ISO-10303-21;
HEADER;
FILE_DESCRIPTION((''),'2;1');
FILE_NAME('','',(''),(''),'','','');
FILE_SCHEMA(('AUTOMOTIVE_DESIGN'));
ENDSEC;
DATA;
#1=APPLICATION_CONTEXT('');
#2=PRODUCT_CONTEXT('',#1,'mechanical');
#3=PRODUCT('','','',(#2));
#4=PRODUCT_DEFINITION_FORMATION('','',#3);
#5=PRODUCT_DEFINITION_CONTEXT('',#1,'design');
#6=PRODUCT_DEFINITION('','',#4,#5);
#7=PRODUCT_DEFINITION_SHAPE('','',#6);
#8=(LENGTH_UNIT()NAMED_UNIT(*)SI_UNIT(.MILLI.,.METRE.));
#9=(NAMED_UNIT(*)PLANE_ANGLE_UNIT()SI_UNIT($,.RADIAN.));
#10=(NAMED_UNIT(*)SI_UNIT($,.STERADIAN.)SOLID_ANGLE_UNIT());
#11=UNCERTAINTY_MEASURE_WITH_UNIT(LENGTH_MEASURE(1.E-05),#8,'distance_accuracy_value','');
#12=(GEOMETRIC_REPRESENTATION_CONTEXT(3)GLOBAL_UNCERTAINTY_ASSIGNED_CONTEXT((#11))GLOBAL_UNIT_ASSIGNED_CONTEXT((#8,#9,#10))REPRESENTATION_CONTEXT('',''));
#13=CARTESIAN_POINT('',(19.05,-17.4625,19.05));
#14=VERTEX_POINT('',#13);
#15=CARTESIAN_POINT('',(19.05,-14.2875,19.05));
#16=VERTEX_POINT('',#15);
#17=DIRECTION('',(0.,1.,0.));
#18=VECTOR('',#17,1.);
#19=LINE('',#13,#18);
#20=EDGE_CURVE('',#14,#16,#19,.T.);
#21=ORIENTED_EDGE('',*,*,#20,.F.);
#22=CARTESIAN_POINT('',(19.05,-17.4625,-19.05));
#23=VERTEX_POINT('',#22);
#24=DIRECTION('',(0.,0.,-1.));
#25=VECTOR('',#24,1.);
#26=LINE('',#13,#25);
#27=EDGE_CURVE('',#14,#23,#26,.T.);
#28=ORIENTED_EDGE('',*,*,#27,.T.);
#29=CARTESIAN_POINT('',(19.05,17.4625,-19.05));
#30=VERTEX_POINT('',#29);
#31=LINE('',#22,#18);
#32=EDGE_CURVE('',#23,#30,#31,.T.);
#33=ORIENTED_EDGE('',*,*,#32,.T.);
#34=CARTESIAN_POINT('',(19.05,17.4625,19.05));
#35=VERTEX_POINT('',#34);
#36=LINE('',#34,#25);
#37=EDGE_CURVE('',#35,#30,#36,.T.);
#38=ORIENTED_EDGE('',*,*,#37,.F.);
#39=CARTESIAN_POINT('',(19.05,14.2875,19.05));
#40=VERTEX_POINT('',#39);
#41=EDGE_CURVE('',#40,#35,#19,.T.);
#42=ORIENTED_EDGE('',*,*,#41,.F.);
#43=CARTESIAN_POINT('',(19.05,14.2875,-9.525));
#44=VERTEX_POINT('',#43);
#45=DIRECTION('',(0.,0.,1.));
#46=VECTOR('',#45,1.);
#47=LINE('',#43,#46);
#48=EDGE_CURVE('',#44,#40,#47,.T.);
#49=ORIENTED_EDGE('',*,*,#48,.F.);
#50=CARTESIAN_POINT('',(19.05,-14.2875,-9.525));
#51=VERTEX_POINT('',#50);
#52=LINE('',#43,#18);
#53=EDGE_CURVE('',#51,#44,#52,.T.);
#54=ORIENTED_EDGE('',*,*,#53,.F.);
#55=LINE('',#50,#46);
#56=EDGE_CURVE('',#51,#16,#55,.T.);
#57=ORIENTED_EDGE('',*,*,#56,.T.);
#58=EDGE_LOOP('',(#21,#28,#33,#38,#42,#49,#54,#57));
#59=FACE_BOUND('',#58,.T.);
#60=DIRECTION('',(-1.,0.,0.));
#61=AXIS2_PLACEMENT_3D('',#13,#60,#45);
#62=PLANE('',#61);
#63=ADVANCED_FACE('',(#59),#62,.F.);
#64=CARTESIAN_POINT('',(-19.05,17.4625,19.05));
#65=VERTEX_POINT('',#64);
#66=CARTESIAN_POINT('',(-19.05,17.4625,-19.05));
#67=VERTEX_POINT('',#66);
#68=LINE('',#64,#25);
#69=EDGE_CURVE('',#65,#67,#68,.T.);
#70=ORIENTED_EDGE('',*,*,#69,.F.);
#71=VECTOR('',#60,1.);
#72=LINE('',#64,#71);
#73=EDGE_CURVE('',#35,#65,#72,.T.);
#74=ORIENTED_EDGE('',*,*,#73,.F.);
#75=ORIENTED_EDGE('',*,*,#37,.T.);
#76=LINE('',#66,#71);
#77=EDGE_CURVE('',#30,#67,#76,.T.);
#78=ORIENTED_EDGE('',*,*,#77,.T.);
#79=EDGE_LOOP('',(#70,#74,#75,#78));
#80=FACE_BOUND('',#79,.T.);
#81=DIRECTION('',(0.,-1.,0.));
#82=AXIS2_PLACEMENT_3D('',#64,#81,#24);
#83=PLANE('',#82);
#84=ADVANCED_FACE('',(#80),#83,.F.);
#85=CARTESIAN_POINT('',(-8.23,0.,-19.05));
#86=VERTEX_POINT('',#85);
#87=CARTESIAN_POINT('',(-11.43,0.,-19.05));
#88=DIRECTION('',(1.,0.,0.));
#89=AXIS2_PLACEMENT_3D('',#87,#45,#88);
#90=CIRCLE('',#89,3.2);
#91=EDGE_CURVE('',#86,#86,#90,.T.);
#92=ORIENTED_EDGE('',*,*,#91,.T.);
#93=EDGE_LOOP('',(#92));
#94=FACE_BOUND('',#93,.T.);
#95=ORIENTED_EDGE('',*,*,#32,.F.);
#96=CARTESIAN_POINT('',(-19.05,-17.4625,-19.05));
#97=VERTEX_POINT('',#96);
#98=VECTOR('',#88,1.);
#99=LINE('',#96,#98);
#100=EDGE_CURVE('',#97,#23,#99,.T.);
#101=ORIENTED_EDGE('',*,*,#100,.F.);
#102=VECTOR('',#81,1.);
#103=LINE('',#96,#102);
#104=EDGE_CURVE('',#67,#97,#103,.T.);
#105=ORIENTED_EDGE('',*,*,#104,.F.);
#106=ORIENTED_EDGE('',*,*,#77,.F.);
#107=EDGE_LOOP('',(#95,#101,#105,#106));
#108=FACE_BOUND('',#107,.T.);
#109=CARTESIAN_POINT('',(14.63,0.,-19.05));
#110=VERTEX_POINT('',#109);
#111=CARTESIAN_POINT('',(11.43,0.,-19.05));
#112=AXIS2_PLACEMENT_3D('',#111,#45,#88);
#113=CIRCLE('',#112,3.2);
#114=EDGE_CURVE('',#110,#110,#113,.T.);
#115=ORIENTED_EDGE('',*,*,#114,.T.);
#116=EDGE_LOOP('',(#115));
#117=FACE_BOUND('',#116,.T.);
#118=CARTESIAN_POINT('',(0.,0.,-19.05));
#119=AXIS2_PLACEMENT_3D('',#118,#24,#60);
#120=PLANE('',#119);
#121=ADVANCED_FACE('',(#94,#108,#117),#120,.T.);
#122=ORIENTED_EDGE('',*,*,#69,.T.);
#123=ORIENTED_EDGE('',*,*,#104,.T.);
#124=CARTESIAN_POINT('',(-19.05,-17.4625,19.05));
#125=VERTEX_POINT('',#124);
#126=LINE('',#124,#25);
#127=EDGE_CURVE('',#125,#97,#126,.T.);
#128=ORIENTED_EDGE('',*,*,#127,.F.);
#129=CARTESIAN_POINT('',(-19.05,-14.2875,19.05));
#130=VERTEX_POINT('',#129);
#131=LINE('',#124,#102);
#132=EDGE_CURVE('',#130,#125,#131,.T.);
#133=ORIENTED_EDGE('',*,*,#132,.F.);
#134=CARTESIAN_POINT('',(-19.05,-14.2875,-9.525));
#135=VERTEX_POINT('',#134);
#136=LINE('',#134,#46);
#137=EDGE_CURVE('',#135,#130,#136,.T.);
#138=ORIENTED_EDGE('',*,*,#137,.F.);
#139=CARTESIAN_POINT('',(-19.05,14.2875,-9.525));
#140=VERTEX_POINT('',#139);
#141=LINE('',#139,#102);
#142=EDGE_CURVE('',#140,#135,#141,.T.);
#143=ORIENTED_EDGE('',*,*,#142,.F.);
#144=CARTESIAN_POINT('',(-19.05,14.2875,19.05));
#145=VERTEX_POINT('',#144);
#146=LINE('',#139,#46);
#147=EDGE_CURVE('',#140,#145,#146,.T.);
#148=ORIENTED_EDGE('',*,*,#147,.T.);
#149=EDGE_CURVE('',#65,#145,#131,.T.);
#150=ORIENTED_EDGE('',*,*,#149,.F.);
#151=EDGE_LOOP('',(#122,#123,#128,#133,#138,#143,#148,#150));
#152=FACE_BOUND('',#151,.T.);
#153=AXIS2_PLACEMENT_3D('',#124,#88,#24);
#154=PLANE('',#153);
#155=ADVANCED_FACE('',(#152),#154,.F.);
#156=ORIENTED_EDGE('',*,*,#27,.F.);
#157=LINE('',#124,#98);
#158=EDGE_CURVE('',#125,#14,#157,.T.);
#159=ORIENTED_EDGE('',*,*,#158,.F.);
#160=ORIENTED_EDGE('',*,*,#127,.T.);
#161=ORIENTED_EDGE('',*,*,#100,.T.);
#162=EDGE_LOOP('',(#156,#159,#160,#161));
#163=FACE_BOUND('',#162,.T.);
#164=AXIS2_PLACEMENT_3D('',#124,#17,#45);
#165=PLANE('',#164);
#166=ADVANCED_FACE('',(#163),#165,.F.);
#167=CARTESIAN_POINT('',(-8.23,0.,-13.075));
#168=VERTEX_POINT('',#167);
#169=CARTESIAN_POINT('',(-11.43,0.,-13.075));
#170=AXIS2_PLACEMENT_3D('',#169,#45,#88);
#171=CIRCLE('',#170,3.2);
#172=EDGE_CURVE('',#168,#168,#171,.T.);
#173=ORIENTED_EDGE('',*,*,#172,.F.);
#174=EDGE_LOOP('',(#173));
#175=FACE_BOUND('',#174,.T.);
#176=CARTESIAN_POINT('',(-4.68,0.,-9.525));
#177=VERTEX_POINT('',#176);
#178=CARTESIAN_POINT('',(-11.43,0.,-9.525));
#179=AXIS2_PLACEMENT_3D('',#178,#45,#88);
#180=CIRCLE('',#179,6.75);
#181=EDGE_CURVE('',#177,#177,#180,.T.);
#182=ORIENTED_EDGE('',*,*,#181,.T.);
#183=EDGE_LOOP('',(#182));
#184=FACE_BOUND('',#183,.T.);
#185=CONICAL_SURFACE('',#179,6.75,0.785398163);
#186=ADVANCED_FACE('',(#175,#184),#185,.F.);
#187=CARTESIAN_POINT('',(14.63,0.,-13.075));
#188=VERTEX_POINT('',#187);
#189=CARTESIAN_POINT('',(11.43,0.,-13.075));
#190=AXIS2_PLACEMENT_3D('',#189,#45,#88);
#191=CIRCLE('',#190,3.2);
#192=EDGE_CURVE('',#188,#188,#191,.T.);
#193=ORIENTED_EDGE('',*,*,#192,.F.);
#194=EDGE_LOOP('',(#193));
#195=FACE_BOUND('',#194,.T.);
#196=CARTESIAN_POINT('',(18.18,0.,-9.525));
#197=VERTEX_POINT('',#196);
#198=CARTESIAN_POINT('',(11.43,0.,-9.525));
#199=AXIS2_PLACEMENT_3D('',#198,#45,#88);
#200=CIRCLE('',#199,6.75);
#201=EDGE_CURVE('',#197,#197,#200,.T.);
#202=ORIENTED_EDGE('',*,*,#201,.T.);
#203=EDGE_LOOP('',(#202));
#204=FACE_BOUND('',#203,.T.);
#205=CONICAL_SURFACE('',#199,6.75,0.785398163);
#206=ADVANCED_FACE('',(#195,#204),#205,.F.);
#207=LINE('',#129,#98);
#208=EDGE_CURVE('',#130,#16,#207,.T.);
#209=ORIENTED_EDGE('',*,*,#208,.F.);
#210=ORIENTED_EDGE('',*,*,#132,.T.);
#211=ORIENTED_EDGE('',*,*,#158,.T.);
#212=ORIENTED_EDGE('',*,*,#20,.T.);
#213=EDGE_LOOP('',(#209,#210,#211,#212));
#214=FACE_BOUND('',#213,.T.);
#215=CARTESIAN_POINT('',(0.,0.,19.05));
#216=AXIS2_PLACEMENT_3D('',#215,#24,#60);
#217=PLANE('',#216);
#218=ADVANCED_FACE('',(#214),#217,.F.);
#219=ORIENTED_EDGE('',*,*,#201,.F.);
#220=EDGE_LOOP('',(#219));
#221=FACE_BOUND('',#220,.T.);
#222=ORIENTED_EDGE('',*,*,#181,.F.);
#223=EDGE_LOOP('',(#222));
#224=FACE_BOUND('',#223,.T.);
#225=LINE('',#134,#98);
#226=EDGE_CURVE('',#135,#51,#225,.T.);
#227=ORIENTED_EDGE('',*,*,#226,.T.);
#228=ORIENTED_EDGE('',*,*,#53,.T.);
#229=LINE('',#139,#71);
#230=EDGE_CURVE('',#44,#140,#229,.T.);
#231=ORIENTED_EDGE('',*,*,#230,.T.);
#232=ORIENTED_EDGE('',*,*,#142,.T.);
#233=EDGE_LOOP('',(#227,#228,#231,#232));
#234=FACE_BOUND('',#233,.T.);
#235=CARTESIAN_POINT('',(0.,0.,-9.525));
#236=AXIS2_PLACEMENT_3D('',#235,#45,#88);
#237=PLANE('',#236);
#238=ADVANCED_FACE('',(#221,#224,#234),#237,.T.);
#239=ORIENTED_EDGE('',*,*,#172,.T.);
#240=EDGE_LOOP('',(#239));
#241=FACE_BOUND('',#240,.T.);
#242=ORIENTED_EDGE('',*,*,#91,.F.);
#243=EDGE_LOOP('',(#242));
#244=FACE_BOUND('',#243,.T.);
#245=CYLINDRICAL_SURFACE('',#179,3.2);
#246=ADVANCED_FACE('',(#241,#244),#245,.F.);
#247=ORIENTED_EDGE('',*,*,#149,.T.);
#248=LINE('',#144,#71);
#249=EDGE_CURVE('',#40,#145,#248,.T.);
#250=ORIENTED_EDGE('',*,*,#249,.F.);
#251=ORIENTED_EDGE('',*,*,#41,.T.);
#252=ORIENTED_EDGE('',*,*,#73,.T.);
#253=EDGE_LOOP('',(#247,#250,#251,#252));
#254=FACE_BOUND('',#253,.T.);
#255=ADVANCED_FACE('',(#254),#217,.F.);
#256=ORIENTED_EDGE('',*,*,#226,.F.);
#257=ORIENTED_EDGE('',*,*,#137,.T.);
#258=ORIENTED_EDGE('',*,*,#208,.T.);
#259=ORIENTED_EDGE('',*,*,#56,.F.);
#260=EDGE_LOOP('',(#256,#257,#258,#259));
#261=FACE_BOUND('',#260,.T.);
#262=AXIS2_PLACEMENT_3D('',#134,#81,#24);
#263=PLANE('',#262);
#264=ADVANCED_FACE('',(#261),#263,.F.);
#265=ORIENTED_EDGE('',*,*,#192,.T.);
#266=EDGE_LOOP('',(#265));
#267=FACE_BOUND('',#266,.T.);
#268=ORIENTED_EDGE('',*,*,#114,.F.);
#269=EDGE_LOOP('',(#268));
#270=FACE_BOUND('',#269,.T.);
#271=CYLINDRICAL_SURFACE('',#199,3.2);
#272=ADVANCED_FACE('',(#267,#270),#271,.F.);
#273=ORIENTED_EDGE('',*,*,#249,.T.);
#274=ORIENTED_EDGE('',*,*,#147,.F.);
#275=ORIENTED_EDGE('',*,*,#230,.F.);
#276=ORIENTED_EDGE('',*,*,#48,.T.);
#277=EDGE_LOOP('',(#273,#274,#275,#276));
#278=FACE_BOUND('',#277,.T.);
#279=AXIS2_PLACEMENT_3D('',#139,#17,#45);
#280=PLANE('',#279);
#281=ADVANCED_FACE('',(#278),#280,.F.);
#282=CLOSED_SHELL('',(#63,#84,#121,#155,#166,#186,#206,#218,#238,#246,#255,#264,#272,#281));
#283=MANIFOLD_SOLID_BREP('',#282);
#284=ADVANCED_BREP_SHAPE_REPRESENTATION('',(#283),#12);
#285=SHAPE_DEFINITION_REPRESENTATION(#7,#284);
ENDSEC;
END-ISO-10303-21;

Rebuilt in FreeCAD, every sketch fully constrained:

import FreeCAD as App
import Part
import Sketcher

V = App.Vector
Q = App.Units.Quantity

doc = App.newDocument("Part")
params = doc.addObject("Spreadsheet::Sheet", "Params")
for row, (alias, value) in enumerate([
    ("sketch1_width", "1.5 in"),
    ("sketch1_height", "1.375 in"),
    ("pad1_length", "1.5 in"),
    ("sketch2_width", "1.5 in"),
    ("sketch2_height", "1.125 in"),
    ("pocket1_length", "1.125 in"),
    ("hole_diameter", "6.4 mm"),
    ("hole_csink_diameter", "13.5 mm"),
], start=1):
    params.set(f"A{row}", alias)
    params.set(f"B{row}", "=" + value)
    params.setAlias(f"B{row}", alias)

body = doc.addObject("PartDesign::Body", "Body")

# Sketch on XY plane
sketch1 = body.newObject("Sketcher::SketchObject", "Sketch")
sketch1.AttachmentSupport = (doc.getObject("XY_Plane"), [""])
sketch1.MapMode = "FlatFace"
sketch1.addGeometry(Part.LineSegment(V(-19, 17, 0), V(-19, -17, 0)), False)
sketch1.addGeometry(Part.LineSegment(V(-19, -17, 0), V(19, -17, 0)), False)
sketch1.addGeometry(Part.LineSegment(V(19, -17, 0), V(19, 17, 0)), False)
sketch1.addGeometry(Part.LineSegment(V(19, 17, 0), V(-19, 17, 0)), False)
sketch1.addConstraint(Sketcher.Constraint("Coincident", 0, 2, 1, 1))
sketch1.addConstraint(Sketcher.Constraint("Coincident", 1, 2, 2, 1))
sketch1.addConstraint(Sketcher.Constraint("Coincident", 2, 2, 3, 1))
sketch1.addConstraint(Sketcher.Constraint("Coincident", 3, 2, 0, 1))
sketch1.addConstraint(Sketcher.Constraint("Vertical", 0))
sketch1.addConstraint(Sketcher.Constraint("Horizontal", 1))
sketch1.addConstraint(Sketcher.Constraint("Vertical", 2))
sketch1.addConstraint(Sketcher.Constraint("Horizontal", 3))
sketch1.addConstraint(Sketcher.Constraint("Symmetric", 0, 2, 2, 2, -1, 1))
sketch1.addConstraint(Sketcher.Constraint("DistanceX", 1, 1, 1, 2, Q("1.5 in")))
sketch1.addConstraint(Sketcher.Constraint("DistanceY", 0, 2, 0, 1, Q("1.375 in")))
sketch1.setExpression("Constraints[9]", "Params.sketch1_width")
sketch1.setExpression("Constraints[10]", "Params.sketch1_height")
pad1 = body.newObject("PartDesign::Pad", "Pad")
pad1.Profile = sketch1
pad1.setExpression("Length", "Params.pad1_length")
pad1.Midplane = True

# Sketch on XY plane
sketch2 = body.newObject("Sketcher::SketchObject", "Sketch001")
sketch2.AttachmentSupport = (doc.getObject("XY_Plane"), [""])
sketch2.MapMode = "FlatFace"
sketch2.AttachmentOffset = App.Placement(V(0, 0, 0.75 * 25.4), App.Rotation())
sketch2.addGeometry(Part.LineSegment(V(-19, 14, 0), V(-19, -14, 0)), False)
sketch2.addGeometry(Part.LineSegment(V(-19, -14, 0), V(19, -14, 0)), False)
sketch2.addGeometry(Part.LineSegment(V(19, -14, 0), V(19, 14, 0)), False)
sketch2.addGeometry(Part.LineSegment(V(19, 14, 0), V(-19, 14, 0)), False)
sketch2.addConstraint(Sketcher.Constraint("Coincident", 0, 2, 1, 1))
sketch2.addConstraint(Sketcher.Constraint("Coincident", 1, 2, 2, 1))
sketch2.addConstraint(Sketcher.Constraint("Coincident", 2, 2, 3, 1))
sketch2.addConstraint(Sketcher.Constraint("Coincident", 3, 2, 0, 1))
sketch2.addConstraint(Sketcher.Constraint("Vertical", 0))
sketch2.addConstraint(Sketcher.Constraint("Horizontal", 1))
sketch2.addConstraint(Sketcher.Constraint("Vertical", 2))
sketch2.addConstraint(Sketcher.Constraint("Horizontal", 3))
sketch2.addConstraint(Sketcher.Constraint("Symmetric", 0, 2, 2, 2, -1, 1))
sketch2.addConstraint(Sketcher.Constraint("DistanceX", 1, 1, 1, 2, Q("1.5 in")))
sketch2.addConstraint(Sketcher.Constraint("DistanceY", 0, 2, 0, 1, Q("1.125 in")))
sketch2.setExpression("Constraints[9]", "Params.sketch2_width")
sketch2.setExpression("Constraints[10]", "Params.sketch2_height")
pocket1 = body.newObject("PartDesign::Pocket", "Pocket")
pocket1.Profile = sketch2
pocket1.setExpression("Length", "Params.pocket1_length")

# Sketch on XY plane
sketch3 = body.newObject("Sketcher::SketchObject", "Sketch002")
sketch3.AttachmentSupport = (doc.getObject("XY_Plane"), [""])
sketch3.MapMode = "FlatFace"
sketch3.AttachmentOffset = App.Placement(V(0, 0, -0.375 * 25.4), App.Rotation())
sketch3.addGeometry(Part.Circle(V(-11.4, 0, 0), V(0, 0, 1), 3.2), False)
sketch3.addGeometry(Part.Circle(V(11.4, 0, 0), V(0, 0, 1), 3.2), False)
sketch3.addConstraint(Sketcher.Constraint("Equal", 0, 1))
sketch3.addConstraint(Sketcher.Constraint("Symmetric", 0, 3, 1, 3, -1, 1))
sketch3.addConstraint(Sketcher.Constraint("PointOnObject", 0, 3, -1))
sketch3.addConstraint(Sketcher.Constraint("DistanceX", 0, 3, 1, 3, Q("0.9 in")))
sketch3.addConstraint(Sketcher.Constraint("Diameter", 0, 6.4))
doc.recompute()
hole = body.newObject("PartDesign::Hole", "Hole")
hole.Profile = sketch3
hole.ThreadType = "None"
hole.setExpression("Diameter", "Params.hole_diameter")
hole.DepthType = "ThroughAll"
hole.HoleCutType = "Countersink"
hole.setExpression("HoleCutDiameter", "Params.hole_csink_diameter")
hole.HoleCutCountersinkAngle = 90

doc.recompute()
